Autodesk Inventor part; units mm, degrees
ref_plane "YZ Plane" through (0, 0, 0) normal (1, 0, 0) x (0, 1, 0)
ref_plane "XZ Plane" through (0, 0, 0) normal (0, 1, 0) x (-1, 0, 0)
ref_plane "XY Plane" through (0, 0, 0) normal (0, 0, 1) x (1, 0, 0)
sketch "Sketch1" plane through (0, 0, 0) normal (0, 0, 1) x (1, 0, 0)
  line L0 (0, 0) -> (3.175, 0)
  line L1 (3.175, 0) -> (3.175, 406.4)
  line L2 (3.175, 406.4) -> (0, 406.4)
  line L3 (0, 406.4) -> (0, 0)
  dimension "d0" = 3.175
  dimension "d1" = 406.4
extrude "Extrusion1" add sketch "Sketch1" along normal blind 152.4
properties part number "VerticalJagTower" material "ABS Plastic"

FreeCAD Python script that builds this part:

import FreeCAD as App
import Part
import Sketcher
Q = App.Units.Quantity


def add_polygon(sketch, points):
    """Adds a closed chain of lines whose ends are joined by coincident constraints."""
    first, n = sketch.GeometryCount, len(points)
    for a, b in zip(points, points[1:] + points[:1]):
        sketch.addGeometry(Part.LineSegment(App.Vector(*a, 0), App.Vector(*b, 0)), False)
    for i in range(n):
        sketch.addConstraint(Sketcher.Constraint("Coincident", first + i, 2, first + (i + 1) % n, 1))

doc = App.newDocument("Part")
params = doc.addObject("Spreadsheet::Sheet", "Params")
for row, (alias, value) in enumerate([
    ("sketch1_height", "16 in"),
    ("sketch1_width", "0.125 in"),
    ("pad1_length", "6 in"),
], start=1):
    params.set(f"A{row}", alias)
    params.set(f"B{row}", "=" + value)
    params.setAlias(f"B{row}", alias)

body = doc.addObject("PartDesign::Body", "Body")

sketch1 = body.newObject("Sketcher::SketchObject", "Sketch")
sketch1.AttachmentSupport = (doc.getObject("XY_Plane"), [""])
sketch1.MapMode = "FlatFace"
add_polygon(sketch1, [(0, 406.4), (0, 0), (3.175, 0), (3.175, 406.4)])
sketch1.addConstraint([
    Sketcher.Constraint("Vertical", 0),
    Sketcher.Constraint("Horizontal", 1),
    Sketcher.Constraint("Vertical", 2),
    Sketcher.Constraint("Horizontal", 3),
    Sketcher.Constraint("Coincident", 0, 2, -1, 1),
    Sketcher.Constraint("DistanceY", 0, 2, 0, 1, Q("16 in")),
    Sketcher.Constraint("DistanceX", 1, 1, 1, 2, Q("0.125 in")),
])
sketch1.setExpression("Constraints[9]", "Params.sketch1_height")
sketch1.setExpression("Constraints[10]", "Params.sketch1_width")
pad1 = body.newObject("PartDesign::Pad", "Pad")
pad1.Profile = sketch1
pad1.setExpression("Length", "Params.pad1_length")

doc.recompute()
